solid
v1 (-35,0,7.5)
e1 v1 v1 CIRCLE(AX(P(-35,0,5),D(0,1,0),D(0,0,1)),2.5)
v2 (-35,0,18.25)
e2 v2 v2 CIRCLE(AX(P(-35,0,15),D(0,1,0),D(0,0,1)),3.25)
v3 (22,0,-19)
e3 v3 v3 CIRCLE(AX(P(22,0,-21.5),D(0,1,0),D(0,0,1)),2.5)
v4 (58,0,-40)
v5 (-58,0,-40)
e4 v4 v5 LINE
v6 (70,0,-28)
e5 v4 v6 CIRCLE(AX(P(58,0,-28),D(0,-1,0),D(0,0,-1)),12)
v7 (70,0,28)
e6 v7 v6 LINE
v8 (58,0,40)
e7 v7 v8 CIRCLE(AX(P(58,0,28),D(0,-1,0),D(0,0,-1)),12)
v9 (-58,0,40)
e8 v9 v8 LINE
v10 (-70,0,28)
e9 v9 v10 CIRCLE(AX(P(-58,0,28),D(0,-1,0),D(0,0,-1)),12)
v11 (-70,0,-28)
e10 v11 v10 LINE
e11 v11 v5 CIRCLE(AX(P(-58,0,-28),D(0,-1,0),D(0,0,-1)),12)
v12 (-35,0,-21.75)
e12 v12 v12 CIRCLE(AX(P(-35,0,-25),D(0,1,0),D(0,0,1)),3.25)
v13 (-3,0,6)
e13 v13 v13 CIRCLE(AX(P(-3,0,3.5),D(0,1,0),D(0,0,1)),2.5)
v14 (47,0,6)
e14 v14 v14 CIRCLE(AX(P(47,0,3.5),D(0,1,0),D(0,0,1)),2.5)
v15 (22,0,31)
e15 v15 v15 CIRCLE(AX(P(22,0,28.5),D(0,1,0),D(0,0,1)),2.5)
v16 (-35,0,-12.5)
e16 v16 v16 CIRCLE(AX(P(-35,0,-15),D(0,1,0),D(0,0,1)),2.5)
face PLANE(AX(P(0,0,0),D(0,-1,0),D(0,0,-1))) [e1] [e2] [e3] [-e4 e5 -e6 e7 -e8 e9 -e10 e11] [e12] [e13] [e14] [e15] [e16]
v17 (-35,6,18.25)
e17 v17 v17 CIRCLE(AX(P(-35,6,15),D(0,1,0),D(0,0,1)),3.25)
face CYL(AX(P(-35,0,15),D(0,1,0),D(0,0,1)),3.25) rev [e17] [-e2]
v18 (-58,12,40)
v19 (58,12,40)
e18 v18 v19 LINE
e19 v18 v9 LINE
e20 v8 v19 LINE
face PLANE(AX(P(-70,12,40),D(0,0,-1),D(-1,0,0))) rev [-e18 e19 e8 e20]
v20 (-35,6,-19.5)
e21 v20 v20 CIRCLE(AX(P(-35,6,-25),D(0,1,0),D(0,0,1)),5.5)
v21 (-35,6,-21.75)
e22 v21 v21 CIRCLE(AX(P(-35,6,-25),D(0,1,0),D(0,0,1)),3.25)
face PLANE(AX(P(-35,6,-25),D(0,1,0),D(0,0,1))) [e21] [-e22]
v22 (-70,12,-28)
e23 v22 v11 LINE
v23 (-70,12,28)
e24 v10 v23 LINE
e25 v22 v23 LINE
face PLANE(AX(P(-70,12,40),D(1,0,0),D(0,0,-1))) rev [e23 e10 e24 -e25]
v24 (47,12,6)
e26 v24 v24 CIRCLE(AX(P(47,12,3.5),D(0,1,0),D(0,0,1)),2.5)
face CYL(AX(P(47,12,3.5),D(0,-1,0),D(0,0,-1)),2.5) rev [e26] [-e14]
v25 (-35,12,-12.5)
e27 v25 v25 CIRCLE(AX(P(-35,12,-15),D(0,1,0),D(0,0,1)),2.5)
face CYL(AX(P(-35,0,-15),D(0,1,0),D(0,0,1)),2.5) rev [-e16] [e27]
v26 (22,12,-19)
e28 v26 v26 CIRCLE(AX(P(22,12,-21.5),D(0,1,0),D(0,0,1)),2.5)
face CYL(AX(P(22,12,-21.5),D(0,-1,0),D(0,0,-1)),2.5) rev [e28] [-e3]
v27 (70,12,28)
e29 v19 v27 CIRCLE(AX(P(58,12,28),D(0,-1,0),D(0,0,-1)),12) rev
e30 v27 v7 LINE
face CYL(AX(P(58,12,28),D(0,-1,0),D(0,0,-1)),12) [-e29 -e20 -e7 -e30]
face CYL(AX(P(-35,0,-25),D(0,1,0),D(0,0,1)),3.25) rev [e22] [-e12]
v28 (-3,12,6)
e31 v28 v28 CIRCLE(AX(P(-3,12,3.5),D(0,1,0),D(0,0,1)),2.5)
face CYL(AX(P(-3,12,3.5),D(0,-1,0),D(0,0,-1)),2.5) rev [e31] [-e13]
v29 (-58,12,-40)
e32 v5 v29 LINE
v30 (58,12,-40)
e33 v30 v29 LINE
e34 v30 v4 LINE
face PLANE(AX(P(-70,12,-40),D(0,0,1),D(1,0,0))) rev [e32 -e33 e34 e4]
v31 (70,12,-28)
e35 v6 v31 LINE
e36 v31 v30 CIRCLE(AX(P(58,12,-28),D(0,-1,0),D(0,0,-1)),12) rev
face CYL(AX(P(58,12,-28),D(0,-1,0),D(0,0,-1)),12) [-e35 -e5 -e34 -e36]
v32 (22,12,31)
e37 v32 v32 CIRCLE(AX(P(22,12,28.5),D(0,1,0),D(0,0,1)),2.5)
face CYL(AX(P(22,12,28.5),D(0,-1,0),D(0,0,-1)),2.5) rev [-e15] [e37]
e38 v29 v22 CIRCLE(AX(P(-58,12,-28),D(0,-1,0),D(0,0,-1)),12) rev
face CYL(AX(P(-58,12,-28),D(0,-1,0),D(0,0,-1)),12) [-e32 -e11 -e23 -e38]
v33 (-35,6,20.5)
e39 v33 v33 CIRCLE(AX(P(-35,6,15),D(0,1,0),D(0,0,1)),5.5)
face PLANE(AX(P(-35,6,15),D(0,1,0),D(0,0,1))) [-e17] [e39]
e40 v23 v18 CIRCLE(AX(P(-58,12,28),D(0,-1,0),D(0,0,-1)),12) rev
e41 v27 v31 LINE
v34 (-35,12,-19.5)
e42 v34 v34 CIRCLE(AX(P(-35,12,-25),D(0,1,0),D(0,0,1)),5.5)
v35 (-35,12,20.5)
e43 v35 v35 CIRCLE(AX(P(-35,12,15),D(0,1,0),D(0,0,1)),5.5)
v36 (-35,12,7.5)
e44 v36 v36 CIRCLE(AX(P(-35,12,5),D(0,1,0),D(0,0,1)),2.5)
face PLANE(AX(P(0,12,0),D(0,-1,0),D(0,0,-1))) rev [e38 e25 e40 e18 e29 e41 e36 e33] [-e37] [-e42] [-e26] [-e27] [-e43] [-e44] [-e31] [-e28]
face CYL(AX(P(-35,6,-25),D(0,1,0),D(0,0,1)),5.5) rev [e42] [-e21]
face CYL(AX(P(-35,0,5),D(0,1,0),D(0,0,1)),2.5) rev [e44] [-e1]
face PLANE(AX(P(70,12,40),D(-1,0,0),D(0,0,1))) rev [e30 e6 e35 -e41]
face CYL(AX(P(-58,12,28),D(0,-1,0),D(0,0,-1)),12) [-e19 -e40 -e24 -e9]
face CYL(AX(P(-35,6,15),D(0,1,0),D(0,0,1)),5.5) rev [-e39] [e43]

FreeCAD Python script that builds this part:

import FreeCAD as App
import Part
import Sketcher

V = App.Vector


def edges_at(feature, points):
    """Names of the edges that pass closest to the given points."""
    edges = feature.Shape.Edges
    near = lambda p: min(range(len(edges)), key=lambda i: edges[i].distToShape(Part.Vertex(*p))[0])
    return sorted({f"Edge{near(p) + 1}" for p in points})


def add_polygon(sketch, points):
    """Adds a closed chain of lines whose ends are joined by coincident constraints."""
    first, n = sketch.GeometryCount, len(points)
    for a, b in zip(points, points[1:] + points[:1]):
        sketch.addGeometry(Part.LineSegment(App.Vector(*a, 0), App.Vector(*b, 0)), False)
    for i in range(n):
        sketch.addConstraint(Sketcher.Constraint("Coincident", first + i, 2, first + (i + 1) % n, 1))

doc = App.newDocument("Part")
body = doc.addObject("PartDesign::Body", "Body")

# Sketch on XZ plane
sketch1 = doc.addObject("Sketcher::SketchObject", "Sketch")
body.addObject(sketch1)
sketch1.AttachmentSupport = (doc.XZ_Plane, [""])
sketch1.MapMode = "FlatFace"
add_polygon(sketch1, [(-70, -40), (-70, 40), (70, 40), (70, -40)])  # lines 0-3
sketch1.addGeometry(Part.Circle(V(22, 28.5, 0), V(0, 0, 1), 2.5), False)  # 4
sketch1.addGeometry(Part.Circle(V(-3, 3.5, 0), V(0, 0, 1), 2.5), False)  # 5
sketch1.addGeometry(Part.Circle(V(47, 3.5, 0), V(0, 0, 1), 2.5), False)  # 6
sketch1.addGeometry(Part.Circle(V(22, -21.5, 0), V(0, 0, 1), 2.5), False)  # 7
sketch1.addConstraint([
    Sketcher.Constraint("Vertical", 0),
    Sketcher.Constraint("Horizontal", 1),
    Sketcher.Constraint("Vertical", 2),
    Sketcher.Constraint("Horizontal", 3),
    Sketcher.Constraint("Equal", 4, 5),
    Sketcher.Constraint("Equal", 5, 6),
    Sketcher.Constraint("Equal", 6, 7),
    Sketcher.Constraint("Symmetric", 0, 2, 2, 2, -1, 1),
    Sketcher.Constraint("Horizontal", 5, 3, 6, 3),
    Sketcher.Constraint("Vertical", 4, 3, 7, 3),
    Sketcher.Constraint("Diameter", 4, 5.0),
    Sketcher.Constraint("DistanceX", 1, 1, 1, 2, 140.0),
    Sketcher.Constraint("DistanceY", 0, 1, 0, 2, 80.0),
    Sketcher.Constraint("DistanceX", -1, 1, 4, 3, 22.0),
    Sketcher.Constraint("DistanceX", 5, 3, -1, 1, 3.0),
    Sketcher.Constraint("DistanceX", -1, 1, 6, 3, 47.0),
    Sketcher.Constraint("DistanceY", 5, 3, 4, 3, 25.0),
    Sketcher.Constraint("DistanceY", 7, 3, 5, 3, 25.0),
    Sketcher.Constraint("DistanceY", -1, 1, 4, 3, 28.5),
])
pad1 = doc.addObject("PartDesign::Pad", "Pad")
body.addObject(pad1)
pad1.Profile = sketch1
pad1.Length = 12
pad1.Reversed = True
doc.recompute()

fillet = doc.addObject("PartDesign::Fillet", "Fillet")
body.addObject(fillet)
fillet.Base = (pad1, edges_at(pad1, [
    (70, 6, 40),
    (-70, 6, 40),
    (-70, 6, -40),
    (70, 6, -40),
]))
fillet.Radius = 12

# Sketch on XZ plane
sketch2 = doc.addObject("Sketcher::SketchObject", "Sketch001")
body.addObject(sketch2)
sketch2.AttachmentSupport = (doc.XZ_Plane, [""])
sketch2.MapMode = "FlatFace"
sketch2.AttachmentOffset = App.Placement(V(0, 0, -12), App.Rotation())
sketch2.addGeometry([
    Part.Circle(V(-35, -25, 0), V(0, 0, 1), 5.5),
    Part.Circle(V(-35, 15, 0), V(0, 0, 1), 5.5),
], False)
sketch2.addConstraint([
    Sketcher.Constraint("Equal", 0, 1),
    Sketcher.Constraint("Vertical", 0, 3, 1, 3),
    Sketcher.Constraint("Diameter", 0, 11.0),
    Sketcher.Constraint("DistanceX", 0, 3, -1, 1, 35.0),
    Sketcher.Constraint("DistanceY", 0, 3, -1, 1, 25.0),
    Sketcher.Constraint("DistanceY", -1, 1, 1, 3, 15.0),
])
pocket1 = doc.addObject("PartDesign::Pocket", "Pocket")
body.addObject(pocket1)
pocket1.Profile = sketch2
pocket1.Length = 6
pocket1.Reversed = True

# Sketch on XZ plane
sketch3 = doc.addObject("Sketcher::SketchObject", "Sketch002")
body.addObject(sketch3)
sketch3.AttachmentSupport = (doc.XZ_Plane, [""])
sketch3.MapMode = "FlatFace"
sketch3.AttachmentOffset = App.Placement(V(0, 0, -6), App.Rotation())
sketch3.addGeometry([
    Part.Circle(V(-35, -25, 0), V(0, 0, 1), 3.25),
    Part.Circle(V(-35, 15, 0), V(0, 0, 1), 3.25),
], False)
sketch3.addConstraint([
    Sketcher.Constraint("Equal", 0, 1),
    Sketcher.Constraint("Vertical", 0, 3, 1, 3),
    Sketcher.Constraint("Diameter", 0, 6.5),
    Sketcher.Constraint("DistanceX", 0, 3, -1, 1, 35.0),
    Sketcher.Constraint("DistanceY", 0, 3, -1, 1, 25.0),
    Sketcher.Constraint("DistanceY", -1, 1, 1, 3, 15.0),
])
pocket2 = doc.addObject("PartDesign::Pocket", "Pocket001")
body.addObject(pocket2)
pocket2.Profile = sketch3
pocket2.Length = 6
pocket2.Reversed = True

# Sketch on XZ plane
sketch4 = doc.addObject("Sketcher::SketchObject", "Sketch003")
body.addObject(sketch4)
sketch4.AttachmentSupport = (doc.XZ_Plane, [""])
sketch4.MapMode = "FlatFace"
sketch4.AttachmentOffset = App.Placement(V(0, 0, -12), App.Rotation())
sketch4.addGeometry([
    Part.Circle(V(-35, -15, 0), V(0, 0, 1), 2.5),
    Part.Circle(V(-35, 5, 0), V(0, 0, 1), 2.5),
], False)
sketch4.addConstraint([
    Sketcher.Constraint("Equal", 0, 1),
    Sketcher.Constraint("Vertical", 0, 3, 1, 3),
    Sketcher.Constraint("Diameter", 0, 5.0),
    Sketcher.Constraint("DistanceX", 0, 3, -1, 1, 35.0),
    Sketcher.Constraint("DistanceY", 0, 3, -1, 1, 15.0),
    Sketcher.Constraint("DistanceY", -1, 1, 1, 3, 5.0),
])
pocket3 = doc.addObject("PartDesign::Pocket", "Pocket002")
body.addObject(pocket3)
pocket3.Profile = sketch4
pocket3.Type = "ThroughAll"
pocket3.Reversed = True

doc.recompute()
